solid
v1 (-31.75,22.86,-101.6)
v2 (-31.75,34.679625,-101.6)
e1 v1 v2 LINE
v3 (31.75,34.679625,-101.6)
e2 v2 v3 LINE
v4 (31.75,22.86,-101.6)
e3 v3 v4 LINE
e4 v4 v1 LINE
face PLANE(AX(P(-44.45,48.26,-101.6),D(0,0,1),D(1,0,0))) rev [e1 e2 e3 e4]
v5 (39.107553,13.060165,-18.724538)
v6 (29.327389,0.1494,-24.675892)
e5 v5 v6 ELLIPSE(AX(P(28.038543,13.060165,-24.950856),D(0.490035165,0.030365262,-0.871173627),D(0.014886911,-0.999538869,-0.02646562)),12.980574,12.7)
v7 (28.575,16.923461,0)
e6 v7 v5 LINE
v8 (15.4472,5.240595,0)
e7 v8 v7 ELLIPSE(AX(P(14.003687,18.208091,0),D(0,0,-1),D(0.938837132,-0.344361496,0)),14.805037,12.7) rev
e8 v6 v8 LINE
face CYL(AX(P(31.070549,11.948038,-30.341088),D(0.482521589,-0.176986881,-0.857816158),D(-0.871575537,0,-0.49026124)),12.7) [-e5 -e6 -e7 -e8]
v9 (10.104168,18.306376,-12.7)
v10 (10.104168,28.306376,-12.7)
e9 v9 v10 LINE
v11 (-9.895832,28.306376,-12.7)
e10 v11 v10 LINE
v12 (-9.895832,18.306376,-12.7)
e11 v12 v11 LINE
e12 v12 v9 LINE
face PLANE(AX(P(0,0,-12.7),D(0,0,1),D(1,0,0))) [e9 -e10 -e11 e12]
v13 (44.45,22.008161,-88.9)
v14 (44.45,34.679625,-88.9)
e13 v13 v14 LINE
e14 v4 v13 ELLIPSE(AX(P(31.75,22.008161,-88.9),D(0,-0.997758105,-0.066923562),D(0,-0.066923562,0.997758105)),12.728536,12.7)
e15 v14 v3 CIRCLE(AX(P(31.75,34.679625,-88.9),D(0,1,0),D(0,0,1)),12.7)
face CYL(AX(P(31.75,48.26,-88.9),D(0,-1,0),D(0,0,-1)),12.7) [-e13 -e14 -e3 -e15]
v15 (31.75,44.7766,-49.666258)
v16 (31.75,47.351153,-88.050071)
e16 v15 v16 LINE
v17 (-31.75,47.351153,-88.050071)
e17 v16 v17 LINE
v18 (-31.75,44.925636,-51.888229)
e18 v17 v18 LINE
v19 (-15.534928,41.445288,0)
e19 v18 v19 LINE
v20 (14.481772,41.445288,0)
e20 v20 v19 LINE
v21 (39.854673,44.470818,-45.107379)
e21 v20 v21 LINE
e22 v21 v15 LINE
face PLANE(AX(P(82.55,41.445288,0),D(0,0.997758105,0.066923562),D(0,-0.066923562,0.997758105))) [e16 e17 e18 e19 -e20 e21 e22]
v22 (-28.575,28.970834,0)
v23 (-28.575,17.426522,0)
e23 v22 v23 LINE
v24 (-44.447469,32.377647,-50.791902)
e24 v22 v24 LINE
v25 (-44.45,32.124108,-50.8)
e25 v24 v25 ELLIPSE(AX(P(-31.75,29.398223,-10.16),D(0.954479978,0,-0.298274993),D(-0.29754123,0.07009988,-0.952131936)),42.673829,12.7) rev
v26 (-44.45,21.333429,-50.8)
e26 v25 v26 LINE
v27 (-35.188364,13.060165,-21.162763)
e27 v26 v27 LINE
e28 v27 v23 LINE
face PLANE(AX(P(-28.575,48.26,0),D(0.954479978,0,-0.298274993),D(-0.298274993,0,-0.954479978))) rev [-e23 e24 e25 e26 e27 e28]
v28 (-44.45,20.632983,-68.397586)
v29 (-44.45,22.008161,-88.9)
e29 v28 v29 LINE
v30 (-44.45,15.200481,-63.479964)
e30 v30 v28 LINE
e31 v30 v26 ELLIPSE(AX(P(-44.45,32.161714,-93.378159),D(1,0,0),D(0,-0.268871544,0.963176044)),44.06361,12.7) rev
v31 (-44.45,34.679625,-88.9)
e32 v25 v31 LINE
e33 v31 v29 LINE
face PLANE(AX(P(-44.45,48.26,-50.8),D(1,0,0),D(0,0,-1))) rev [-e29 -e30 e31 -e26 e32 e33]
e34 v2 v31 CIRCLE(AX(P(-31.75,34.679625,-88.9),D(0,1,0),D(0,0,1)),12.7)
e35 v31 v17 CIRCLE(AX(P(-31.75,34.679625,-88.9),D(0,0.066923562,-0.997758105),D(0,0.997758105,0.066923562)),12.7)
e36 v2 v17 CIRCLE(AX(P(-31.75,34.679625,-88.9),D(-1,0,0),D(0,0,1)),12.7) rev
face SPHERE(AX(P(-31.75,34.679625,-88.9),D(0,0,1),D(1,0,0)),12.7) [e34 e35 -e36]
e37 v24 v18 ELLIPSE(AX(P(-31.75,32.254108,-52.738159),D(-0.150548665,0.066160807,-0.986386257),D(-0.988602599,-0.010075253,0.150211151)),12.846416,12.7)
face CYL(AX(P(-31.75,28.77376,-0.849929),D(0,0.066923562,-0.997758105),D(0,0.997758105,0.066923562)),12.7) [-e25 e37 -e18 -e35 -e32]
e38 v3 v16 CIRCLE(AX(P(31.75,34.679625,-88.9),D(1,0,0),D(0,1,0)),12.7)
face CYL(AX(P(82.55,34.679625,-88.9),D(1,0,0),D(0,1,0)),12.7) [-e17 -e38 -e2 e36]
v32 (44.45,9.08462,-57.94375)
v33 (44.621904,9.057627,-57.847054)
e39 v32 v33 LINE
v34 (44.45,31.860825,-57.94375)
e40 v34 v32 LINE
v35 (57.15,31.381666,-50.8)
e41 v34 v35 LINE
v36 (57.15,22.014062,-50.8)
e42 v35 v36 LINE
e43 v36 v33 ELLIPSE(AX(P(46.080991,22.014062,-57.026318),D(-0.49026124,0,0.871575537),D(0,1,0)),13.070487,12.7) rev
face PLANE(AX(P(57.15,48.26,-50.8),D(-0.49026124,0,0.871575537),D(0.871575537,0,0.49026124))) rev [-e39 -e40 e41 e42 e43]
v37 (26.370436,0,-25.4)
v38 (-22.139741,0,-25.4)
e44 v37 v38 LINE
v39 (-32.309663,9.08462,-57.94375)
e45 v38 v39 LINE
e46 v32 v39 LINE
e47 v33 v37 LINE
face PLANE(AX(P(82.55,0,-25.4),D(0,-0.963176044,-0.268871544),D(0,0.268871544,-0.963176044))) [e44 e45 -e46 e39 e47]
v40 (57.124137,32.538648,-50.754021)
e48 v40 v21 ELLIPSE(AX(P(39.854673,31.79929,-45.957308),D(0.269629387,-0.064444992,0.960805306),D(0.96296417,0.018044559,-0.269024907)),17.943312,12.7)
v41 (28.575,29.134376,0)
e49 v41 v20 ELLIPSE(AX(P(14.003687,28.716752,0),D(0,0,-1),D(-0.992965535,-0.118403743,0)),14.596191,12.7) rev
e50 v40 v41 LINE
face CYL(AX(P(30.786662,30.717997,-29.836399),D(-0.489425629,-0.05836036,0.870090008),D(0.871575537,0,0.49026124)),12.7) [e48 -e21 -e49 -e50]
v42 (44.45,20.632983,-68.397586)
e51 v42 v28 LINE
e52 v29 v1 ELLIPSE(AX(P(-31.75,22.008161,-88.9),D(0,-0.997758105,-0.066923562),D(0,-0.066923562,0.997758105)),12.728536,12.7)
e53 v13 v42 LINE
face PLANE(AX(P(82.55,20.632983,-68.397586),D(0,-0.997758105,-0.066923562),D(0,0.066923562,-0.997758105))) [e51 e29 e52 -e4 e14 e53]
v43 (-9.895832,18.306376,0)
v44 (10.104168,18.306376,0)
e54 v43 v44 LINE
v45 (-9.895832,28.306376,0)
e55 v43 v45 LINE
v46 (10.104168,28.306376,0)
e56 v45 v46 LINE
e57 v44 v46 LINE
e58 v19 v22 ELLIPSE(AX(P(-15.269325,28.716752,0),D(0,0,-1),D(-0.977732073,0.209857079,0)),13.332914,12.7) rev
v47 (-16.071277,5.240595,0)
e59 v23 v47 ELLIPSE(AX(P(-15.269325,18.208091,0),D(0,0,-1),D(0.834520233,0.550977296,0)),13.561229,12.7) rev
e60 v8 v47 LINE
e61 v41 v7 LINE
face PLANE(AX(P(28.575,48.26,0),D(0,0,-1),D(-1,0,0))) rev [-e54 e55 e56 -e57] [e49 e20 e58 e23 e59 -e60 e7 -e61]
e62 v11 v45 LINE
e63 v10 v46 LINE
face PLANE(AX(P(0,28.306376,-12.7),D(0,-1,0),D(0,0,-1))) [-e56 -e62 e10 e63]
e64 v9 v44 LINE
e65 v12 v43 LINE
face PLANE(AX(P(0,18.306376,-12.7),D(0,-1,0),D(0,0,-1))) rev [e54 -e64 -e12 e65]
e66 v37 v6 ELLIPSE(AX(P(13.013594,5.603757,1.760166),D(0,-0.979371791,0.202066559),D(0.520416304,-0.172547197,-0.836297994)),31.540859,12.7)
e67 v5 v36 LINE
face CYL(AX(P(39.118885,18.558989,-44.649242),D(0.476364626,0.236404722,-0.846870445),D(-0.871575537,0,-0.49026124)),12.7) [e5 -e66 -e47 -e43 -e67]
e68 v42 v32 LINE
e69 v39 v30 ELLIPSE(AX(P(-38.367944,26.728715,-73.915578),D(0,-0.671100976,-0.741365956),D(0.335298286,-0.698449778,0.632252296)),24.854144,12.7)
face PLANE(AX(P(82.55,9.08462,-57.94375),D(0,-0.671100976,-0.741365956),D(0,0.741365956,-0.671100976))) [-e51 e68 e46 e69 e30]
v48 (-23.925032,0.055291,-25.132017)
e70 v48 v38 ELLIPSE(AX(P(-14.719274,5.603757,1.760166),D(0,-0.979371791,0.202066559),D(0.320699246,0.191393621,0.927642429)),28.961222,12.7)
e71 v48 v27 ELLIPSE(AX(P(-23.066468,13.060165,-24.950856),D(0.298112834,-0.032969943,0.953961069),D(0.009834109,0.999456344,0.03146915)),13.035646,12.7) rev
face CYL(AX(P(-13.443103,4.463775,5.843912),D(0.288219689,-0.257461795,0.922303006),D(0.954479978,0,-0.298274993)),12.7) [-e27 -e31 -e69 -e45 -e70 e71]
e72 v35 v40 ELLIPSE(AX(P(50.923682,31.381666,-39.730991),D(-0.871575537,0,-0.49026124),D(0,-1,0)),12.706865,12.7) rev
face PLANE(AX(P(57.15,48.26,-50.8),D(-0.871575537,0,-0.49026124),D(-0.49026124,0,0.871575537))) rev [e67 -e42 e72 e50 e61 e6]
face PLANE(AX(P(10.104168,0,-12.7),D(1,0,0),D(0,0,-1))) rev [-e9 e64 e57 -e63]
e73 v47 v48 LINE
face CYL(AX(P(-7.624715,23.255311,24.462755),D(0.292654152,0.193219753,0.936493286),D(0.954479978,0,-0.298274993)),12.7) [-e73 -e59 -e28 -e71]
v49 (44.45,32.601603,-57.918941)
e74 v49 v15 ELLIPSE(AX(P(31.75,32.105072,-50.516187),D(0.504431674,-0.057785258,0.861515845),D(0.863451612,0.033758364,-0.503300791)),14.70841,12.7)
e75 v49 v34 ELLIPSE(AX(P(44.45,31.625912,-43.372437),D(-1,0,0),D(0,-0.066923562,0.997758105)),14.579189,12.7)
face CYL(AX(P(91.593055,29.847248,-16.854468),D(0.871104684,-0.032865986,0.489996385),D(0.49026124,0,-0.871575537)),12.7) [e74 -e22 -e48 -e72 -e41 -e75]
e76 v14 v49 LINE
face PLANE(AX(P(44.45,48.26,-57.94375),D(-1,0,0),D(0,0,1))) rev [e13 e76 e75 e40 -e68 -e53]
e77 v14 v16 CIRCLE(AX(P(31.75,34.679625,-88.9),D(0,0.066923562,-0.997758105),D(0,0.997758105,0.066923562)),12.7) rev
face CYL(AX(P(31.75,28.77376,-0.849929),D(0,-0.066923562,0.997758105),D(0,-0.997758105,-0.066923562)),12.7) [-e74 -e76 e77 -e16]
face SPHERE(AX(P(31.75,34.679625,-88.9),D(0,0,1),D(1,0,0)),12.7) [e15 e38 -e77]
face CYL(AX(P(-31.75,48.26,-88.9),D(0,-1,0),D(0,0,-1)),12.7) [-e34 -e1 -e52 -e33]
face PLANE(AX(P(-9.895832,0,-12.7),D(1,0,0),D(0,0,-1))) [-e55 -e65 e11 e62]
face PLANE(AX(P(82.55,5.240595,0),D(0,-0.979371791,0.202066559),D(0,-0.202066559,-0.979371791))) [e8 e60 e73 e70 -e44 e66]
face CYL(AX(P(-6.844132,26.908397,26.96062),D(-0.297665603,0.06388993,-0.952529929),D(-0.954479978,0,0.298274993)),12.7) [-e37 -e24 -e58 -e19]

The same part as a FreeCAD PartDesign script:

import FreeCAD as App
import Part
import Sketcher

V = App.Vector
Q = App.Units.Quantity


def edges_at(feature, points):
    """Names of the edges that pass closest to the given points."""
    edges = feature.Shape.Edges
    near = lambda p: min(range(len(edges)), key=lambda i: edges[i].distToShape(Part.Vertex(*p))[0])
    return sorted({f"Edge{near(p) + 1}" for p in points})


def add_polygon(sketch, points):
    """Adds a closed chain of lines whose ends are joined by coincident constraints."""
    first, n = sketch.GeometryCount, len(points)
    for a, b in zip(points, points[1:] + points[:1]):
        sketch.addGeometry(Part.LineSegment(App.Vector(*a, 0), App.Vector(*b, 0)), False)
    for i in range(n):
        sketch.addConstraint(Sketcher.Constraint("Coincident", first + i, 2, first + (i + 1) % n, 1))

doc = App.newDocument("Part")
body = doc.addObject("PartDesign::Body", "Body")

# Sketch on XZ plane
sketch1 = body.newObject("Sketcher::SketchObject", "Sketch")
sketch1.AttachmentSupport = (doc.getObject("XZ_Plane"), [""])
sketch1.MapMode = "FlatFace"
add_polygon(sketch1, [(44, -102), (-44, -102), (-44, -51), (-29, 0), (29, 0), (57, -51), (44, -58)])  # lines 0-6
sketch1.addConstraint([
    Sketcher.Constraint("Horizontal", 0),
    Sketcher.Constraint("Vertical", 1),
    Sketcher.Constraint("Horizontal", 3),
    Sketcher.Constraint("Vertical", 6),
    Sketcher.Constraint("Symmetric", 2, 2, 3, 2, -1, 1),
    Sketcher.Constraint("Perpendicular", 4, 5),
    Sketcher.Constraint("Horizontal", 1, 2, 4, 2),
    Sketcher.Constraint("DistanceY", 1, 1, 1, 2, Q("2 in")),
    Sketcher.Constraint("DistanceX", 0, 2, 0, 1, Q("3.5 in")),
    Sketcher.Constraint("DistanceY", 0, 2, -1, 1, Q("4 in")),
    Sketcher.Constraint("DistanceX", 1, 2, 4, 2, Q("4 in")),
    Sketcher.Constraint("DistanceX", 3, 1, 3, 2, Q("2.25 in")),
    Sketcher.Constraint("DistanceY", 6, 2, 6, 1, Q("1.71875 in")),
])
pad1 = body.newObject("PartDesign::Pad", "Pad")
pad1.Profile = sketch1
pad1.Length = Q("1.9 in")
pad1.Reversed = True

# Sketch on YZ plane
sketch2 = body.newObject("Sketcher::SketchObject", "Sketch001")
sketch2.AttachmentSupport = (doc.getObject("YZ_Plane"), [""])
sketch2.MapMode = "FlatFace"
sketch2.AttachmentOffset = App.Placement(V(0, 0, -1.75 * 25.4), App.Rotation())
add_polygon(sketch2, [(64.417, -117.757), (-16.157, -117.757), (-16.157, 16.157), (64.417, 16.157)])  # lines 0-3
add_polygon(sketch2, [(48.26, -101.6), (41.445288, 0), (5.240595, 0), (0, -25.4), (9.08462, -57.94375), (20.632983, -68.397586), (22.86, -101.6)])  # lines 4-10
sketch2.addConstraint([
    Sketcher.Constraint("Horizontal", 0),
    Sketcher.Constraint("Vertical", 1),
    Sketcher.Constraint("Horizontal", 2),
    Sketcher.Constraint("Vertical", 3),
    Sketcher.Constraint("Horizontal", 5),
    Sketcher.Constraint("Horizontal", 10),
    Sketcher.Constraint("PointOnObject", 4, 2, -1),
    Sketcher.Constraint("PointOnObject", 6, 2, -2),
    Sketcher.Constraint("DistanceX", 10, 1, 10, 2, Q("1 in")),
    Sketcher.Constraint("DistanceY", 6, 2, -1, 1, Q("1 in")),
    Sketcher.Constraint("DistanceY", 9, 2, -1, 1, Q("4 in")),
    Sketcher.Constraint("DistanceX", -1, 1, 9, 2, Q("0.9 in")),
    Sketcher.Constraint("DistanceY", 7, 2, -1, 1, Q("2.28125 in")),
    Sketcher.Constraint("DistanceX", 0, 2, 0, 1, 80.574),
    Sketcher.Constraint("DistanceY", 1, 1, 1, 2, 133.914),
    Sketcher.Constraint("DistanceX", 0, 2, -1, 1, 16.157),
    Sketcher.Constraint("DistanceY", 0, 2, -1, 1, 117.757),
    Sketcher.Constraint("Distance", 4, 101.828288),
    Sketcher.Constraint("DistanceX", 5, 2, 5, 1, 36.204694),
    Sketcher.Constraint("DistanceX", -1, 1, 7, 2, 9.08462),
    Sketcher.Constraint("DistanceX", 5, 2, 8, 2, 15.392389),
    Sketcher.Constraint("Distance", 8, 15.577143),
])
pocket1 = body.newObject("PartDesign::Pocket", "Pocket")
pocket1.Profile = sketch2
pocket1.Length = Q("10 in")
pocket1.Midplane = True
doc.recompute()

fillet = body.newObject("PartDesign::Fillet", "Fillet")
fillet.Base = (pocket1, edges_at(pocket1, [
    (-44.45, 35.56, -101.6),
    (44.45, 35.56, -101.6),
    (0, 48.26, -101.6),
    (-44.45, 46.556, -76.2),
    (-36.513, 43.149, -25.4),
    (42.862, 43.149, -25.4),
    (50.8, 45.092, -54.372),
    (44.45, 46.796, -79.772),
]))
fillet.Radius = Q("0.5 in")
doc.recompute()

fillet2 = body.newObject("PartDesign::Fillet", "Fillet001")
fillet2.Base = (fillet, edges_at(fillet, [
    (-40.481, 3.545, -38.1),
    (-32.544, 2.62, -12.7),
    (50.006, 3.545, -38.1),
    (35.719, 2.62, -12.7),
]))
fillet2.Radius = Q("0.5 in")

# Sketch on XY plane
sketch3 = body.newObject("Sketcher::SketchObject", "Sketch002")
sketch3.AttachmentSupport = (doc.getObject("XY_Plane"), [""])
sketch3.MapMode = "FlatFace"
add_polygon(sketch3, [(-10, 28), (-10, 18), (10, 18), (10, 28)])  # lines 0-3
sketch3.addConstraint([
    Sketcher.Constraint("Vertical", 0),
    Sketcher.Constraint("Horizontal", 1),
    Sketcher.Constraint("Vertical", 2),
    Sketcher.Constraint("Horizontal", 3),
    Sketcher.Constraint("DistanceX", 1, 1, 1, 2, 20.0),
    Sketcher.Constraint("DistanceY", 0, 2, 0, 1, 10.0),
    Sketcher.Constraint("DistanceX", 0, 2, -1, 1, 9.895832),
    Sketcher.Constraint("DistanceY", -1, 1, 0, 2, 18.306376),
])
pocket2 = body.newObject("PartDesign::Pocket", "Pocket001")
pocket2.Profile = sketch3
pocket2.Length = Q("0.5 in")

doc.recompute()
